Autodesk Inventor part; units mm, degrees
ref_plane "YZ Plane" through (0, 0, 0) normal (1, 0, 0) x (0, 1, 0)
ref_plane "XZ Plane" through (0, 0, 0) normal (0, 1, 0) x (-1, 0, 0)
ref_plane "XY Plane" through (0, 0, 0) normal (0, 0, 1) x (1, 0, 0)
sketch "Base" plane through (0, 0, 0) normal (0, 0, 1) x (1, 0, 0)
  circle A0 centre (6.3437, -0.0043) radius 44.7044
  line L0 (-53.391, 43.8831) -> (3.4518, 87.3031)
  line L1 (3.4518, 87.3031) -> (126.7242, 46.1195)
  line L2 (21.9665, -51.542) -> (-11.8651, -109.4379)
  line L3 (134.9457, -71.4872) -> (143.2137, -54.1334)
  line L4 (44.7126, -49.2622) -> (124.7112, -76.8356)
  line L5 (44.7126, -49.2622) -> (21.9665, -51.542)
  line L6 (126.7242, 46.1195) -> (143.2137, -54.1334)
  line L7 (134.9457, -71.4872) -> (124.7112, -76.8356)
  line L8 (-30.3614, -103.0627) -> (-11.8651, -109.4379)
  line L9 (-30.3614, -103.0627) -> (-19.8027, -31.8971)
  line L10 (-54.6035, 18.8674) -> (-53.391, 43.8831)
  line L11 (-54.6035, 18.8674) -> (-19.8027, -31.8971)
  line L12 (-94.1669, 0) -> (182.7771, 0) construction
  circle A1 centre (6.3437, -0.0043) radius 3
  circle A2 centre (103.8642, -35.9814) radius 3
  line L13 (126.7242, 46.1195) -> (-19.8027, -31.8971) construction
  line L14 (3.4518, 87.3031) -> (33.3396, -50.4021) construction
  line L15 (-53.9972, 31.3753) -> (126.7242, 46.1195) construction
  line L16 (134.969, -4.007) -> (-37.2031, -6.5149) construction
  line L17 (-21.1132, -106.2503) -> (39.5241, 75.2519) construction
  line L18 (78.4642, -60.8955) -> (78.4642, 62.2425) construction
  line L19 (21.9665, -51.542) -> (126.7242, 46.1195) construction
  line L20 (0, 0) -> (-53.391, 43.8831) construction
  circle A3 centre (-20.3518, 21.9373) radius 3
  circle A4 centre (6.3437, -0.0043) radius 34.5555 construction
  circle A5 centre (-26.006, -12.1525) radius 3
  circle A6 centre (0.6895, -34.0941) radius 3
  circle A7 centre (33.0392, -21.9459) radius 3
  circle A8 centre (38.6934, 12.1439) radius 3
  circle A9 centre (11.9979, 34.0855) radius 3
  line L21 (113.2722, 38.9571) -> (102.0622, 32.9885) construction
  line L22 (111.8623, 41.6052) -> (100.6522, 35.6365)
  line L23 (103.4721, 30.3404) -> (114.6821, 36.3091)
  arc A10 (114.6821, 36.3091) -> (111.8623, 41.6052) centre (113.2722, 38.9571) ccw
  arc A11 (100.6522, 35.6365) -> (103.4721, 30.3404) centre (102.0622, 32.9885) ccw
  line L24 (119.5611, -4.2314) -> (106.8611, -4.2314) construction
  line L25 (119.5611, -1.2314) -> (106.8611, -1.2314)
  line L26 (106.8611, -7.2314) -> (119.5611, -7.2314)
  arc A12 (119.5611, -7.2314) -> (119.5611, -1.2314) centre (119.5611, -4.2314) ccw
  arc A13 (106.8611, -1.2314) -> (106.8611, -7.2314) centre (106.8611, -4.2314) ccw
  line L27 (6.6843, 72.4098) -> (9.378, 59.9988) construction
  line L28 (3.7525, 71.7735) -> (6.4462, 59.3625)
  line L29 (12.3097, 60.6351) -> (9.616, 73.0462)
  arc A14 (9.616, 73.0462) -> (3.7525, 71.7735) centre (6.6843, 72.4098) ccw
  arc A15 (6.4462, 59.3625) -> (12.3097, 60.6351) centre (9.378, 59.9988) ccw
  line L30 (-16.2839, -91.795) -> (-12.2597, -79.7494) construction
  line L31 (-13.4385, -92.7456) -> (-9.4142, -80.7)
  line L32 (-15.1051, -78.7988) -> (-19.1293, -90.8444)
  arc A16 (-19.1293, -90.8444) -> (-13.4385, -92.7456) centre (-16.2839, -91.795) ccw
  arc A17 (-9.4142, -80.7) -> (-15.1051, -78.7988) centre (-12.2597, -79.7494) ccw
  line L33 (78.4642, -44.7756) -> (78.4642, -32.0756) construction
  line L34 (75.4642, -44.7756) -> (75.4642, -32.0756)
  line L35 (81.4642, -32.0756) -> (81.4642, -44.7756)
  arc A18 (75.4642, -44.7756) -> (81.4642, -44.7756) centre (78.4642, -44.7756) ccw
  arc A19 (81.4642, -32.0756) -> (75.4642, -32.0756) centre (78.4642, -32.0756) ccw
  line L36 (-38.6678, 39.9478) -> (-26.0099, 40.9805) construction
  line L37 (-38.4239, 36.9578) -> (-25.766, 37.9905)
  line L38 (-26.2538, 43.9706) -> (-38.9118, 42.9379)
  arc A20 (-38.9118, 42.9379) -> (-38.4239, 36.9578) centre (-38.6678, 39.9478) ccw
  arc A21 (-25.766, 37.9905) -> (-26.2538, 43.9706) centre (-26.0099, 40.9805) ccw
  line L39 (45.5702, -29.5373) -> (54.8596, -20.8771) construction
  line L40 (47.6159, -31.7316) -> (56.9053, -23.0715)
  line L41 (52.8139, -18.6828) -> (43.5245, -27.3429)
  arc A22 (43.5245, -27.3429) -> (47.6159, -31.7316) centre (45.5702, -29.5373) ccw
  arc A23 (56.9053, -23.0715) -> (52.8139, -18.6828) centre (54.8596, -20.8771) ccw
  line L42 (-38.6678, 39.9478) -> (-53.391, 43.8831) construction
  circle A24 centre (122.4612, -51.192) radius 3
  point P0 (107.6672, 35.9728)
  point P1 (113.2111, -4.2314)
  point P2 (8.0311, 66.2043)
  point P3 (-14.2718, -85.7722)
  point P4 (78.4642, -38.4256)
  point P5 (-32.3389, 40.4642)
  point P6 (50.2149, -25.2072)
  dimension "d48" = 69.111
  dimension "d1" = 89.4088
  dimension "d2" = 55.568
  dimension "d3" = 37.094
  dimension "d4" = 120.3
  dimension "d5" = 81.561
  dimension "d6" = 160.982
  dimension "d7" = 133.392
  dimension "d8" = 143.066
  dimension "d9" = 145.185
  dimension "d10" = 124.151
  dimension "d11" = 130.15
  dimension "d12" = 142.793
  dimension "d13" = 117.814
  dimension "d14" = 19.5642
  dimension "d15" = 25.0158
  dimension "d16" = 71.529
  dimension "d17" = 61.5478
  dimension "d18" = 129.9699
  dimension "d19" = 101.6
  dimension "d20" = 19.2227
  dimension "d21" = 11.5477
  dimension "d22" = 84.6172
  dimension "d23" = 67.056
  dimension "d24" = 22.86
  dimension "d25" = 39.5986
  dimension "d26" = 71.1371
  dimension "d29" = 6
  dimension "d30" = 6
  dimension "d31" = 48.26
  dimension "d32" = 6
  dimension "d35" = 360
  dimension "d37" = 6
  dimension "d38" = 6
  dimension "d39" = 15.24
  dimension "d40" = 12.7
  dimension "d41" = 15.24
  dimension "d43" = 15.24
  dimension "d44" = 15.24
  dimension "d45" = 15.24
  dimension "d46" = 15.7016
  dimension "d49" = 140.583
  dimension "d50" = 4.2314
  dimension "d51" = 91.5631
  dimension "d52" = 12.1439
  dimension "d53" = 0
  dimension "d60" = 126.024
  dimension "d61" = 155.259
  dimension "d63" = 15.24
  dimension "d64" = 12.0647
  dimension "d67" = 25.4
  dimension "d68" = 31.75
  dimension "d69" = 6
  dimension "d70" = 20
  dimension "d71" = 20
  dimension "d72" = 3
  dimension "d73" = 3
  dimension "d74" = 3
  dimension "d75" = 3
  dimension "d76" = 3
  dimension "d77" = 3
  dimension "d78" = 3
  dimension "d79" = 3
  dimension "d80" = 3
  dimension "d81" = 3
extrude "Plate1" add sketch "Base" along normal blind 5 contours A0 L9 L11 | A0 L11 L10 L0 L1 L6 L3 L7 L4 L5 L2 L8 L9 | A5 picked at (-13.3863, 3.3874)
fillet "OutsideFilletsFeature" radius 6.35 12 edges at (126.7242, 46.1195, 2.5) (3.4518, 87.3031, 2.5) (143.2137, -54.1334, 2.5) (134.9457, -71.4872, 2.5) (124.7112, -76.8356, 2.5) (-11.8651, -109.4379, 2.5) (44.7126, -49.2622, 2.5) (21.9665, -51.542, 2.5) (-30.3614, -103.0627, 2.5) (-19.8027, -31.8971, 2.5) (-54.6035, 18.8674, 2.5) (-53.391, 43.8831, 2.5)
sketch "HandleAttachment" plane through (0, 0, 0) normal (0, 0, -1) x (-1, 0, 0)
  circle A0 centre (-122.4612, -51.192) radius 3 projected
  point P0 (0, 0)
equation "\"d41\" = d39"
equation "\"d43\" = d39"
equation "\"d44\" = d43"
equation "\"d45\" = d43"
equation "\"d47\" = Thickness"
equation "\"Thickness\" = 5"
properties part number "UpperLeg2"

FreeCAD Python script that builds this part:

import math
import FreeCAD as App
import Part
import Sketcher

V = App.Vector
Q = App.Units.Quantity


def edges_at(feature, points):
    """Names of the edges that pass closest to the given points."""
    edges = feature.Shape.Edges
    near = lambda p: min(range(len(edges)), key=lambda i: edges[i].distToShape(Part.Vertex(*p))[0])
    return sorted({f"Edge{near(p) + 1}" for p in points})

doc = App.newDocument("Part")
body = doc.addObject("PartDesign::Body", "Body")

# Sketch on XY plane
sketch1 = body.newObject("Sketcher::SketchObject", "Sketch")
sketch1.AttachmentSupport = (doc.getObject("XY_Plane"), [""])
sketch1.MapMode = "FlatFace"
sketch1.addGeometry([
    Part.LineSegment(V(-19.8027, -31.8971, 0), V(-30.3614, -103.0627, 0)),  # 0
    Part.LineSegment(V(-30.3614, -103.0627, 0), V(-11.8651, -109.4379, 0)),  # 1
    Part.LineSegment(V(-11.8651, -109.4379, 0), V(21.9665, -51.542, 0)),  # 2
    Part.LineSegment(V(21.9665, -51.542, 0), V(44.7126, -49.2622, 0)),  # 3
    Part.LineSegment(V(44.7126, -49.2622, 0), V(124.7112, -76.8356, 0)),  # 4
    Part.LineSegment(V(124.7112, -76.8356, 0), V(134.9457, -71.4872, 0)),  # 5
    Part.LineSegment(V(134.9457, -71.4872, 0), V(143.2137, -54.1334, 0)),  # 6
    Part.LineSegment(V(143.2137, -54.1334, 0), V(126.7242, 46.1195, 0)),  # 7
    Part.LineSegment(V(126.7242, 46.1195, 0), V(3.4518, 87.3031, 0)),  # 8
    Part.LineSegment(V(3.4518, 87.3031, 0), V(-53.391, 43.8831, 0)),  # 9
    Part.LineSegment(V(-53.391, 43.8831, 0), V(-54.6035, 18.8674, 0)),  # 10
    Part.LineSegment(V(-54.6035, 18.8674, 0), V(-19.8027, -31.8971, 0)),  # 11
    Part.Circle(V(0.6895, -34.0941, 0), V(0, 0, 1), 3),  # 12
    Part.Circle(V(33.0392, -21.9459, 0), V(0, 0, 1), 3),  # 13
    Part.Circle(V(-20.3518, 21.9373, 0), V(0, 0, 1), 3),  # 14
    Part.Circle(V(6.3437, -0.0043, 0), V(0, 0, 1), 3),  # 15
    Part.Circle(V(38.6934, 12.1439, 0), V(0, 0, 1), 3),  # 16
    Part.Circle(V(11.9979, 34.0855, 0), V(0, 0, 1), 3),  # 17
    Part.LineSegment(V(114.6821, 36.3091, 0), V(103.4721, 30.3404, 0)),  # 18
    Part.ArcOfCircle(Part.Circle(V(102.0622, 32.9885, 0), V(0, 0, 1), 3.000001), math.radians(118.03429), math.radians(298.031706)),  # 19
    Part.LineSegment(V(100.6522, 35.6365, 0), V(111.8623, 41.6052, 0)),  # 20
    Part.ArcOfCircle(Part.Circle(V(113.2722, 38.9571, 0), V(0, 0, 1), 2.999954), math.radians(-61.967396), math.radians(118.031706)),  # 21
    Part.LineSegment(V(-9.4142, -80.7, 0), V(-13.4385, -92.7456, 0)),  # 22
    Part.ArcOfCircle(Part.Circle(V(-16.2839, -91.795, 0), V(0, 0, 1), 2.99999), math.radians(161.526398), math.radians(341.526398)),  # 23
    Part.LineSegment(V(-19.1293, -90.8444, 0), V(-15.1051, -78.7988, 0)),  # 24
    Part.ArcOfCircle(Part.Circle(V(-12.2597, -79.7494, 0), V(0, 0, 1), 3.000085), math.radians(-18.472997), math.radians(161.526398)),  # 25
    Part.ArcOfCircle(Part.Circle(V(78.4642, -44.7756, 0), V(0, 0, 1), 3), math.radians(180), math.radians(360)),  # 26
    Part.LineSegment(V(75.4642, -44.7756, 0), V(75.4642, -32.0756, 0)),  # 27
    Part.ArcOfCircle(Part.Circle(V(78.4642, -32.0756, 0), V(0, 0, 1), 3), math.radians(0), math.radians(180)),  # 28
    Part.LineSegment(V(81.4642, -32.0756, 0), V(81.4642, -44.7756, 0)),  # 29
    Part.LineSegment(V(56.9053, -23.0715, 0), V(47.6159, -31.7316, 0)),  # 30
    Part.ArcOfCircle(Part.Circle(V(45.5702, -29.5373, 0), V(0, 0, 1), 3.000047), math.radians(132.991464), math.radians(312.992767)),  # 31
    Part.LineSegment(V(43.5245, -27.3429, 0), V(52.8139, -18.6828, 0)),  # 32
    Part.ArcOfCircle(Part.Circle(V(54.8596, -20.8771, 0), V(0, 0, 1), 3.000047), math.radians(-47.008536), math.radians(132.992767)),  # 33
    Part.Circle(V(103.8642, -35.9814, 0), V(0, 0, 1), 3),  # 34
    Part.Circle(V(122.4612, -51.192, 0), V(0, 0, 1), 3),  # 35
    Part.LineSegment(V(-25.766, 37.9905, 0), V(-38.4239, 36.9578, 0)),  # 36
    Part.ArcOfCircle(Part.Circle(V(-38.6678, 39.9478, 0), V(0, 0, 1), 3.000039), math.radians(94.665149), math.radians(274.663401)),  # 37
    Part.LineSegment(V(-38.9118, 42.9379, 0), V(-26.2538, 43.9706, 0)),  # 38
    Part.ArcOfCircle(Part.Circle(V(-26.0099, 40.9805, 0), V(0, 0, 1), 2.999931), math.radians(-85.336599), math.radians(94.663246)),  # 39
    Part.LineSegment(V(6.4462, 59.3625, 0), V(3.7525, 71.7735, 0)),  # 40
    Part.ArcOfCircle(Part.Circle(V(6.6843, 72.4098, 0), V(0, 0, 1), 2.999978), math.radians(12.24749), math.radians(192.245219)),  # 41
    Part.LineSegment(V(9.616, 73.0462, 0), V(12.3097, 60.6351, 0)),  # 42
    Part.ArcOfCircle(Part.Circle(V(9.378, 59.9988, 0), V(0, 0, 1), 3.000055), math.radians(-167.754781), math.radians(12.245624)),  # 43
    Part.LineSegment(V(106.8611, -1.2314, 0), V(119.5611, -1.2314, 0)),  # 44
    Part.ArcOfCircle(Part.Circle(V(119.5611, -4.2314, 0), V(0, 0, 1), 3), math.radians(-90), math.radians(90)),  # 45
    Part.LineSegment(V(119.5611, -7.2314, 0), V(106.8611, -7.2314, 0)),  # 46
    Part.ArcOfCircle(Part.Circle(V(106.8611, -4.2314, 0), V(0, 0, 1), 3), math.radians(90), math.radians(270)),  # 47
], False)
sketch1.addConstraint([
    Sketcher.Constraint("Coincident", 0, 2, 1, 1),
    Sketcher.Constraint("Coincident", 1, 2, 2, 1),
    Sketcher.Constraint("Coincident", 2, 2, 3, 1),
    Sketcher.Constraint("Coincident", 3, 2, 4, 1),
    Sketcher.Constraint("Coincident", 4, 2, 5, 1),
    Sketcher.Constraint("Coincident", 5, 2, 6, 1),
    Sketcher.Constraint("Coincident", 6, 2, 7, 1),
    Sketcher.Constraint("Coincident", 7, 2, 8, 1),
    Sketcher.Constraint("Coincident", 8, 2, 9, 1),
    Sketcher.Constraint("Coincident", 9, 2, 10, 1),
    Sketcher.Constraint("Coincident", 10, 2, 11, 1),
    Sketcher.Constraint("Coincident", 11, 2, 0, 1),
    Sketcher.Constraint("Coincident", 18, 2, 19, 2),
    Sketcher.Constraint("Coincident", 19, 1, 20, 1),
    Sketcher.Constraint("Coincident", 20, 2, 21, 2),
    Sketcher.Constraint("Coincident", 21, 1, 18, 1),
    Sketcher.Constraint("Coincident", 22, 2, 23, 2),
    Sketcher.Constraint("Coincident", 23, 1, 24, 1),
    Sketcher.Constraint("Coincident", 24, 2, 25, 2),
    Sketcher.Constraint("Coincident", 25, 1, 22, 1),
    Sketcher.Constraint("Coincident", 26, 1, 27, 1),
    Sketcher.Constraint("Coincident", 27, 2, 28, 2),
    Sketcher.Constraint("Coincident", 28, 1, 29, 1),
    Sketcher.Constraint("Coincident", 29, 2, 26, 2),
    Sketcher.Constraint("Coincident", 30, 2, 31, 2),
    Sketcher.Constraint("Coincident", 31, 1, 32, 1),
    Sketcher.Constraint("Coincident", 32, 2, 33, 2),
    Sketcher.Constraint("Coincident", 33, 1, 30, 1),
    Sketcher.Constraint("Coincident", 36, 2, 37, 2),
    Sketcher.Constraint("Coincident", 37, 1, 38, 1),
    Sketcher.Constraint("Coincident", 38, 2, 39, 2),
    Sketcher.Constraint("Coincident", 39, 1, 36, 1),
    Sketcher.Constraint("Coincident", 40, 2, 41, 2),
    Sketcher.Constraint("Coincident", 41, 1, 42, 1),
    Sketcher.Constraint("Coincident", 42, 2, 43, 2),
    Sketcher.Constraint("Coincident", 43, 1, 40, 1),
    Sketcher.Constraint("Coincident", 44, 2, 45, 2),
    Sketcher.Constraint("Coincident", 45, 1, 46, 1),
    Sketcher.Constraint("Coincident", 46, 2, 47, 2),
    Sketcher.Constraint("Coincident", 47, 1, 44, 1),
    Sketcher.Constraint("Vertical", 27),
    Sketcher.Constraint("Vertical", 29),
    Sketcher.Constraint("Horizontal", 44),
    Sketcher.Constraint("Horizontal", 46),
    Sketcher.Constraint("Distance", 7, Q("4 in")),
    Sketcher.Constraint("DistanceX", 44, 1, 44, 2, Q("0.5 in")),
    Sketcher.Constraint("DistanceX", 46, 2, 46, 1, Q("0.5 in")),
    Sketcher.Constraint("DistanceY", 27, 1, 27, 2, Q("0.5 in")),
    Sketcher.Constraint("DistanceY", 29, 2, 29, 1, Q("0.5 in")),
    Sketcher.Constraint("Distance", 3, Q("0.9 in")),
    Sketcher.Constraint("Distance", 18, Q("0.5 in")),
    Sketcher.Constraint("Distance", 20, Q("0.5 in")),
    Sketcher.Constraint("Distance", 22, Q("0.5 in")),
    Sketcher.Constraint("Distance", 24, Q("0.5 in")),
    Sketcher.Constraint("Distance", 30, Q("0.5 in")),
    Sketcher.Constraint("Distance", 32, Q("0.5 in")),
    Sketcher.Constraint("Distance", 36, Q("0.5 in")),
    Sketcher.Constraint("Distance", 38, Q("0.5 in")),
    Sketcher.Constraint("Distance", 40, Q("0.5 in")),
    Sketcher.Constraint("Distance", 42, Q("0.5 in")),
    Sketcher.Constraint("Radius", 19, Q("0.1181 in")),
    Sketcher.Constraint("Radius", 21, Q("0.1181 in")),
    Sketcher.Constraint("Radius", 23, Q("0.1181 in")),
    Sketcher.Constraint("Radius", 26, Q("0.1181 in")),
    Sketcher.Constraint("Radius", 37, Q("0.1181 in")),
    Sketcher.Constraint("Radius", 39, Q("0.1181 in")),
    Sketcher.Constraint("Radius", 41, Q("0.1181 in")),
    Sketcher.Constraint("Radius", 45, Q("0.1181 in")),
    Sketcher.Constraint("Distance", 2, Q("2.64 in")),
    Sketcher.Constraint("Diameter", 12, Q("6 mm")),
    Sketcher.Constraint("Diameter", 13, Q("6 mm")),
    Sketcher.Constraint("Diameter", 14, Q("6 mm")),
    Sketcher.Constraint("Diameter", 15, Q("6 mm")),
    Sketcher.Constraint("Diameter", 16, Q("6 mm")),
    Sketcher.Constraint("Diameter", 17, Q("6 mm")),
    Sketcher.Constraint("Diameter", 34, Q("6 mm")),
    Sketcher.Constraint("Diameter", 35, Q("6 mm")),
    Sketcher.Constraint("Radius", 25, Q("0.1181102 in")),
    Sketcher.Constraint("Radius", 31, Q("0.1181102 in")),
    Sketcher.Constraint("Radius", 33, Q("0.1181102 in")),
    Sketcher.Constraint("Radius", 43, Q("0.1181102 in")),
    Sketcher.Constraint("Distance", 6, Q("0.7568 in")),
    Sketcher.Constraint("Distance", 9, Q("2.8161 in")),
    Sketcher.Constraint("DistanceY", -1, 1, 16, 3, Q("0.4781 in")),
    Sketcher.Constraint("DistanceY", 45, 3, -1, 1, Q("0.1666 in")),
    Sketcher.Constraint("Distance", 1, Q("19.5642 mm")),
    Sketcher.Constraint("Distance", 4, Q("84.6172 mm")),
    Sketcher.Constraint("Distance", 5, Q("11.5477 mm")),
    Sketcher.Constraint("Distance", 8, Q("129.97 mm")),
    Sketcher.Constraint("Distance", 11, Q("61.5478 mm")),
    Sketcher.Constraint("DistanceY", 13, 3, -1, 1, Q("0.864 in")),
    Sketcher.Constraint("DistanceX", 39, 3, -1, 1, Q("1.024 in")),
    Sketcher.Constraint("DistanceX", 9, 2, -1, 1, Q("2.102 in")),
    Sketcher.Constraint("DistanceY", -1, 1, 19, 1, Q("1.403 in")),
    Sketcher.Constraint("DistanceY", -1, 1, 20, 2, Q("1.638 in")),
    Sketcher.Constraint("DistanceX", -1, 1, 19, 3, Q("4.0182 in")),
    Sketcher.Constraint("DistanceX", 23, 3, -1, 1, Q("0.6411 in")),
    Sketcher.Constraint("DistanceX", -1, 1, 31, 3, Q("1.7941 in")),
    Sketcher.Constraint("DistanceY", 34, 3, -1, 1, Q("1.4166 in")),
    Sketcher.Constraint("DistanceX", -1, 1, 35, 3, Q("4.8213 in")),
    Sketcher.Constraint("DistanceY", -1, 1, 39, 3, Q("1.6134 in")),
    Sketcher.Constraint("DistanceX", -1, 1, 4, 2, Q("4.9099 in")),
    Sketcher.Constraint("DistanceX", -1, 1, 8, 2, Q("0.1359 in")),
    Sketcher.Constraint("DistanceY", -1, 1, 10, 2, Q("0.7428 in")),
    Sketcher.Constraint("DistanceY", 11, 2, -1, 1, Q("1.2558 in")),
    Sketcher.Constraint("DistanceX", -1, 1, 18, 2, Q("4.0737 in")),
    Sketcher.Constraint("DistanceY", -1, 1, 18, 2, Q("1.1945 in")),
    Sketcher.Constraint("DistanceY", 22, 2, -1, 1, Q("3.6514 in")),
    Sketcher.Constraint("DistanceX", 24, 2, -1, 1, Q("0.5947 in")),
    Sketcher.Constraint("DistanceY", 31, 1, -1, 1, Q("1.0765 in")),
    Sketcher.Constraint("DistanceX", 39, 1, -1, 1, Q("1.0144 in")),
    Sketcher.Constraint("DistanceY", -1, 1, 42, 2, Q("2.3872 in")),
    Sketcher.Constraint("DistanceY", -1, 1, 43, 1, Q("2.3371 in")),
    Sketcher.Constraint("Distance", 0, Q("71.9446 mm")),
    Sketcher.Constraint("Distance", 10, Q("25.045 mm")),
    Sketcher.Constraint("DistanceX", -1, 1, 12, 3, Q("0.6895 mm")),
    Sketcher.Constraint("DistanceY", 12, 3, -1, 1, Q("34.094 mm")),
    Sketcher.Constraint("DistanceX", -1, 1, 13, 3, Q("33.0392 mm")),
    Sketcher.Constraint("DistanceX", 14, 3, -1, 1, Q("20.3518 mm")),
    Sketcher.Constraint("DistanceY", -1, 1, 14, 3, Q("21.9373 mm")),
    Sketcher.Constraint("DistanceX", -1, 1, 15, 3, Q("6.3437 mm")),
    Sketcher.Constraint("DistanceY", 15, 3, -1, 1, Q("0.0043 mm")),
    Sketcher.Constraint("DistanceX", -1, 1, 16, 3, Q("38.6934 mm")),
    Sketcher.Constraint("DistanceX", -1, 1, 17, 3, Q("11.998 mm")),
    Sketcher.Constraint("DistanceY", -1, 1, 17, 3, Q("34.0855 mm")),
    Sketcher.Constraint("DistanceX", -1, 1, 21, 3, Q("113.2722 mm")),
    Sketcher.Constraint("DistanceY", 23, 3, -1, 1, Q("91.795 mm")),
    Sketcher.Constraint("DistanceX", 25, 3, -1, 1, Q("12.2597 mm")),
    Sketcher.Constraint("DistanceY", 25, 3, -1, 1, Q("79.7494 mm")),
    Sketcher.Constraint("DistanceX", -1, 1, 26, 3, Q("78.4642 mm")),
    Sketcher.Constraint("DistanceY", 26, 3, -1, 1, Q("44.7756 mm")),
    Sketcher.Constraint("DistanceY", 28, 3, -1, 1, Q("32.0756 mm")),
    Sketcher.Constraint("DistanceY", 31, 3, -1, 1, Q("29.5373 mm")),
    Sketcher.Constraint("DistanceX", -1, 1, 33, 3, Q("54.8596 mm")),
    Sketcher.Constraint("DistanceY", 33, 3, -1, 1, Q("20.877 mm")),
    Sketcher.Constraint("DistanceX", -1, 1, 34, 3, Q("103.8642 mm")),
    Sketcher.Constraint("DistanceY", 35, 3, -1, 1, Q("51.192 mm")),
    Sketcher.Constraint("DistanceX", 37, 3, -1, 1, Q("38.6678 mm")),
    Sketcher.Constraint("DistanceY", -1, 1, 37, 3, Q("39.9478 mm")),
    Sketcher.Constraint("DistanceX", -1, 1, 41, 3, Q("6.6843 mm")),
    Sketcher.Constraint("DistanceY", -1, 1, 41, 3, Q("72.4098 mm")),
    Sketcher.Constraint("DistanceX", -1, 1, 43, 3, Q("9.378 mm")),
    Sketcher.Constraint("DistanceY", -1, 1, 43, 3, Q("59.9988 mm")),
    Sketcher.Constraint("DistanceX", -1, 1, 45, 3, Q("119.561 mm")),
    Sketcher.Constraint("DistanceX", -1, 1, 47, 3, Q("106.861 mm")),
    Sketcher.Constraint("DistanceX", 0, 2, -1, 1, Q("30.3614 mm")),
    Sketcher.Constraint("DistanceY", 0, 2, -1, 1, Q("103.0627 mm")),
    Sketcher.Constraint("DistanceX", 1, 2, -1, 1, Q("11.865 mm")),
    Sketcher.Constraint("DistanceX", -1, 1, 2, 2, Q("21.9665 mm")),
    Sketcher.Constraint("DistanceX", -1, 1, 3, 2, Q("44.7126 mm")),
    Sketcher.Constraint("DistanceX", -1, 1, 5, 2, Q("134.9457 mm")),
    Sketcher.Constraint("DistanceX", -1, 1, 6, 2, Q("143.2137 mm")),
    Sketcher.Constraint("DistanceY", 26, 1, -1, 1, Q("44.7756 mm")),
    Sketcher.Constraint("DistanceY", 28, 1, -1, 1, Q("32.0756 mm")),
    Sketcher.Constraint("DistanceX", -1, 1, 30, 2, Q("47.616 mm")),
    Sketcher.Constraint("DistanceX", 37, 1, -1, 1, Q("38.9118 mm")),
    Sketcher.Constraint("DistanceX", -1, 1, 44, 2, Q("119.561 mm")),
    Sketcher.Constraint("DistanceX", -1, 1, 45, 1, Q("119.561 mm")),
])
pad1 = body.newObject("PartDesign::Pad", "Pad")
pad1.Profile = sketch1
pad1.Length = 5
doc.recompute()

fillet = body.newObject("PartDesign::Fillet", "Fillet")
fillet.Base = (pad1, edges_at(pad1, [
    (126.724, 46.12, 2.5),
    (3.452, 87.303, 2.5),
    (143.214, -54.133, 2.5),
    (134.946, -71.487, 2.5),
    (124.711, -76.836, 2.5),
    (-11.865, -109.438, 2.5),
    (44.713, -49.262, 2.5),
    (21.966, -51.542, 2.5),
    (-30.361, -103.063, 2.5),
    (-19.803, -31.897, 2.5),
    (-54.603, 18.867, 2.5),
    (-53.391, 43.883, 2.5),
]))
fillet.Radius = Q("0.25 in")

doc.recompute()
